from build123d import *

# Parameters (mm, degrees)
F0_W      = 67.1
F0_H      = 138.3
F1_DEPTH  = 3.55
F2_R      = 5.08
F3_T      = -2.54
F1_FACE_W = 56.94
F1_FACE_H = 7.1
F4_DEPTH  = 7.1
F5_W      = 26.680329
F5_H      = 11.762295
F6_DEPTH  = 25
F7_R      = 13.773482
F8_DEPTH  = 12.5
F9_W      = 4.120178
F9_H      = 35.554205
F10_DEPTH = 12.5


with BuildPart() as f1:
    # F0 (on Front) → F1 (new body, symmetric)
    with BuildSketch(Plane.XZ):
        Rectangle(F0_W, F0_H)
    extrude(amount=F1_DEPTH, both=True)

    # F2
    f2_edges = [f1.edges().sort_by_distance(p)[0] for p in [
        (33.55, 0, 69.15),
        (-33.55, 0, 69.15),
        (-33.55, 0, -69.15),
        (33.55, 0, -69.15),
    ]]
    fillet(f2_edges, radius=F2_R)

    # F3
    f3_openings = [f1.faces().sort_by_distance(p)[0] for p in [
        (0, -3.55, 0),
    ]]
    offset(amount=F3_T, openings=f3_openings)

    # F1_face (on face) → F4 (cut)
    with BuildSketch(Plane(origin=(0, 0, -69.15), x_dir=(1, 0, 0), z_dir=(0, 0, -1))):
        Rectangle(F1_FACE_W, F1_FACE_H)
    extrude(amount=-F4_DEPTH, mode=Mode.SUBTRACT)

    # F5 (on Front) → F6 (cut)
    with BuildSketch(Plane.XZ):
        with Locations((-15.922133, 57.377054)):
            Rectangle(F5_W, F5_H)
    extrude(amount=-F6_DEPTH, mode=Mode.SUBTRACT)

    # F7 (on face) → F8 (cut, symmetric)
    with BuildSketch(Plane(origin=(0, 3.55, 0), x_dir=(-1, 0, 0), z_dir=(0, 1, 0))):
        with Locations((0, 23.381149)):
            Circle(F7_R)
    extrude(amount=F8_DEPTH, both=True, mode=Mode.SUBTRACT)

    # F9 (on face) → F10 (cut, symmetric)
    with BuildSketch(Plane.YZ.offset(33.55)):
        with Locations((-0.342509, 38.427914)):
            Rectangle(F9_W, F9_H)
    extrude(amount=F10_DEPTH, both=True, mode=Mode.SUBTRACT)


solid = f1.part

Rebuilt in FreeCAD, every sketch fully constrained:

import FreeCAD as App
import Part
import Sketcher
Q = App.Units.Quantity


def edges_at(feature, points):
    """Names of the edges that pass closest to the given points."""
    edges = feature.Shape.Edges
    near = lambda p: min(range(len(edges)), key=lambda i: edges[i].distToShape(Part.Vertex(*p))[0])
    return sorted({f"Edge{near(p) + 1}" for p in points})


def faces_at(feature, points):
    """Names of the faces that lie closest to the given points."""
    faces = feature.Shape.Faces
    near = lambda p: min(range(len(faces)), key=lambda i: faces[i].distToShape(Part.Vertex(*p))[0])
    return sorted({f"Face{near(p) + 1}" for p in points})

doc = App.newDocument("Part")
body = doc.addObject("PartDesign::Body", "Body")

sketch1 = body.newObject("Sketcher::SketchObject", "Sketch")
sketch1.AttachmentSupport = (doc.getObject("XZ_Plane"), [""])
sketch1.MapMode = "FlatFace"
sketch1.addGeometry([
    Part.LineSegment(App.Vector(-34, 69, 0), App.Vector(-34, -69, 0)),
    Part.LineSegment(App.Vector(-34, -69, 0), App.Vector(34, -69, 0)),
    Part.LineSegment(App.Vector(34, -69, 0), App.Vector(34, 69, 0)),
    Part.LineSegment(App.Vector(34, 69, 0), App.Vector(-34, 69, 0)),
], False)
sketch1.addConstraint([
    Sketcher.Constraint("Coincident", 0, 2, 1, 1),
    Sketcher.Constraint("Coincident", 1, 2, 2, 1),
    Sketcher.Constraint("Coincident", 2, 2, 3, 1),
    Sketcher.Constraint("Coincident", 3, 2, 0, 1),
    Sketcher.Constraint("Vertical", 0),
    Sketcher.Constraint("Horizontal", 1),
    Sketcher.Constraint("Vertical", 2),
    Sketcher.Constraint("Horizontal", 3),
    Sketcher.Constraint("Symmetric", 0, 2, 2, 2, -1, 1),
    Sketcher.Constraint("DistanceX", 1, 1, 1, 2, Q("67.1 mm")),
    Sketcher.Constraint("DistanceY", 0, 2, 0, 1, Q("138.3 mm")),
])
pad1 = body.newObject("PartDesign::Pad", "Pad")
pad1.Profile = sketch1
pad1.Length = 7.1
pad1.Midplane = True
doc.recompute()

fillet = body.newObject("PartDesign::Fillet", "Fillet")
fillet.Base = (pad1, edges_at(pad1, [
    (33.55, 0, 69.15),
    (-33.55, 0, 69.15),
    (-33.55, 0, -69.15),
    (33.55, 0, -69.15),
]))
fillet.Radius = 5.08
doc.recompute()

thickness = body.newObject("PartDesign::Thickness", "Thickness")
thickness.Base = (fillet, faces_at(fillet, [(0, -3.55, 0)]))
thickness.Value = 2.54
thickness.Reversed = True
thickness.Join = "Arc"

sketch2 = body.newObject("Sketcher::SketchObject", "Sketch001")
sketch2.AttachmentSupport = (doc.getObject("XY_Plane"), [""])
sketch2.MapMode = "FlatFace"
sketch2.AttachmentOffset = App.Placement(App.Vector(0, 0, -69.15), App.Rotation())
sketch2.addGeometry([
    Part.LineSegment(App.Vector(-28, -4, 0), App.Vector(-28, 4, 0)),
    Part.LineSegment(App.Vector(-28, 4, 0), App.Vector(28, 4, 0)),
    Part.LineSegment(App.Vector(28, 4, 0), App.Vector(28, -4, 0)),
    Part.LineSegment(App.Vector(28, -4, 0), App.Vector(-28, -4, 0)),
], False)
sketch2.addConstraint([
    Sketcher.Constraint("Coincident", 0, 2, 1, 1),
    Sketcher.Constraint("Coincident", 1, 2, 2, 1),
    Sketcher.Constraint("Coincident", 2, 2, 3, 1),
    Sketcher.Constraint("Coincident", 3, 2, 0, 1),
    Sketcher.Constraint("Vertical", 0),
    Sketcher.Constraint("Horizontal", 1),
    Sketcher.Constraint("Vertical", 2),
    Sketcher.Constraint("Horizontal", 3),
    Sketcher.Constraint("Symmetric", 0, 2, 2, 2, -1, 1),
    Sketcher.Constraint("DistanceY", 0, 1, 0, 2, Q("7.1 mm")),
    Sketcher.Constraint("DistanceX", 1, 1, 1, 2, Q("56.94 mm")),
])
pocket1 = body.newObject("PartDesign::Pocket", "Pocket")
pocket1.Profile = sketch2
pocket1.Length = 7.1
pocket1.Reversed = True

sketch3 = body.newObject("Sketcher::SketchObject", "Sketch002")
sketch3.AttachmentSupport = (doc.getObject("XZ_Plane"), [""])
sketch3.MapMode = "FlatFace"
sketch3.addGeometry([
    Part.LineSegment(App.Vector(-29, 63, 0), App.Vector(-29, 51, 0)),
    Part.LineSegment(App.Vector(-29, 51, 0), App.Vector(-3, 51, 0)),
    Part.LineSegment(App.Vector(-3, 51, 0), App.Vector(-3, 63, 0)),
    Part.LineSegment(App.Vector(-3, 63, 0), App.Vector(-29, 63, 0)),
], False)
sketch3.addConstraint([
    Sketcher.Constraint("Coincident", 0, 2, 1, 1),
    Sketcher.Constraint("Coincident", 1, 2, 2, 1),
    Sketcher.Constraint("Coincident", 2, 2, 3, 1),
    Sketcher.Constraint("Coincident", 3, 2, 0, 1),
    Sketcher.Constraint("Vertical", 0),
    Sketcher.Constraint("Horizontal", 1),
    Sketcher.Constraint("Vertical", 2),
    Sketcher.Constraint("Horizontal", 3),
    Sketcher.Constraint("DistanceX", 1, 1, 1, 2, Q("26.680329 mm")),
    Sketcher.Constraint("DistanceY", -1, 1, 2, 2, Q("63.258201 mm")),
    Sketcher.Constraint("DistanceY", 0, 2, 0, 1, Q("11.762295 mm")),
    Sketcher.Constraint("DistanceX", 1, 2, -1, 1, Q("2.581968 mm")),
])
pocket2 = body.newObject("PartDesign::Pocket", "Pocket001")
pocket2.Profile = sketch3
pocket2.Length = 25

sketch4 = body.newObject("Sketcher::SketchObject", "Sketch003")
sketch4.AttachmentSupport = (doc.getObject("XZ_Plane"), [""])
sketch4.MapMode = "FlatFace"
sketch4.AttachmentOffset = App.Placement(App.Vector(0, 0, -3.55), App.Rotation())
sketch4.addGeometry(Part.Circle(App.Vector(0, 23, 0), App.Vector(0, 0, 1), 14), False)
sketch4.addConstraint([
    Sketcher.Constraint("PointOnObject", 0, 3, -2),
    Sketcher.Constraint("Diameter", 0, Q("27.546964 mm")),
    Sketcher.Constraint("DistanceY", -1, 1, 0, 3, Q("23.381149 mm")),
])
pocket3 = body.newObject("PartDesign::Pocket", "Pocket002")
pocket3.Profile = sketch4
pocket3.Length = 25
pocket3.Midplane = True

sketch5 = body.newObject("Sketcher::SketchObject", "Sketch004")
sketch5.AttachmentSupport = (doc.getObject("YZ_Plane"), [""])
sketch5.MapMode = "FlatFace"
sketch5.AttachmentOffset = App.Placement(App.Vector(0, 0, 33.55), App.Rotation())
sketch5.addGeometry([
    Part.LineSegment(App.Vector(-2.4, 56.2, 0), App.Vector(-2.4, 20.7, 0)),
    Part.LineSegment(App.Vector(-2.4, 20.7, 0), App.Vector(1.7, 20.7, 0)),
    Part.LineSegment(App.Vector(1.7, 20.7, 0), App.Vector(1.7, 56.2, 0)),
    Part.LineSegment(App.Vector(1.7, 56.2, 0), App.Vector(-2.4, 56.2, 0)),
], False)
sketch5.addConstraint([
    Sketcher.Constraint("Coincident", 0, 2, 1, 1),
    Sketcher.Constraint("Coincident", 1, 2, 2, 1),
    Sketcher.Constraint("Coincident", 2, 2, 3, 1),
    Sketcher.Constraint("Coincident", 3, 2, 0, 1),
    Sketcher.Constraint("Vertical", 0),
    Sketcher.Constraint("Horizontal", 1),
    Sketcher.Constraint("Vertical", 2),
    Sketcher.Constraint("Horizontal", 3),
    Sketcher.Constraint("DistanceX", 1, 1, 1, 2, Q("4.120178 mm")),
    Sketcher.Constraint("DistanceY", 0, 2, 0, 1, Q("35.554205 mm")),
    Sketcher.Constraint("DistanceY", -1, 1, 0, 2, Q("20.650811 mm")),
    Sketcher.Constraint("DistanceX", -1, 1, 1, 2, Q("1.71758 mm")),
])
pocket4 = body.newObject("PartDesign::Pocket", "Pocket003")
pocket4.Profile = sketch5
pocket4.Length = 25
pocket4.Midplane = True

doc.recompute()
